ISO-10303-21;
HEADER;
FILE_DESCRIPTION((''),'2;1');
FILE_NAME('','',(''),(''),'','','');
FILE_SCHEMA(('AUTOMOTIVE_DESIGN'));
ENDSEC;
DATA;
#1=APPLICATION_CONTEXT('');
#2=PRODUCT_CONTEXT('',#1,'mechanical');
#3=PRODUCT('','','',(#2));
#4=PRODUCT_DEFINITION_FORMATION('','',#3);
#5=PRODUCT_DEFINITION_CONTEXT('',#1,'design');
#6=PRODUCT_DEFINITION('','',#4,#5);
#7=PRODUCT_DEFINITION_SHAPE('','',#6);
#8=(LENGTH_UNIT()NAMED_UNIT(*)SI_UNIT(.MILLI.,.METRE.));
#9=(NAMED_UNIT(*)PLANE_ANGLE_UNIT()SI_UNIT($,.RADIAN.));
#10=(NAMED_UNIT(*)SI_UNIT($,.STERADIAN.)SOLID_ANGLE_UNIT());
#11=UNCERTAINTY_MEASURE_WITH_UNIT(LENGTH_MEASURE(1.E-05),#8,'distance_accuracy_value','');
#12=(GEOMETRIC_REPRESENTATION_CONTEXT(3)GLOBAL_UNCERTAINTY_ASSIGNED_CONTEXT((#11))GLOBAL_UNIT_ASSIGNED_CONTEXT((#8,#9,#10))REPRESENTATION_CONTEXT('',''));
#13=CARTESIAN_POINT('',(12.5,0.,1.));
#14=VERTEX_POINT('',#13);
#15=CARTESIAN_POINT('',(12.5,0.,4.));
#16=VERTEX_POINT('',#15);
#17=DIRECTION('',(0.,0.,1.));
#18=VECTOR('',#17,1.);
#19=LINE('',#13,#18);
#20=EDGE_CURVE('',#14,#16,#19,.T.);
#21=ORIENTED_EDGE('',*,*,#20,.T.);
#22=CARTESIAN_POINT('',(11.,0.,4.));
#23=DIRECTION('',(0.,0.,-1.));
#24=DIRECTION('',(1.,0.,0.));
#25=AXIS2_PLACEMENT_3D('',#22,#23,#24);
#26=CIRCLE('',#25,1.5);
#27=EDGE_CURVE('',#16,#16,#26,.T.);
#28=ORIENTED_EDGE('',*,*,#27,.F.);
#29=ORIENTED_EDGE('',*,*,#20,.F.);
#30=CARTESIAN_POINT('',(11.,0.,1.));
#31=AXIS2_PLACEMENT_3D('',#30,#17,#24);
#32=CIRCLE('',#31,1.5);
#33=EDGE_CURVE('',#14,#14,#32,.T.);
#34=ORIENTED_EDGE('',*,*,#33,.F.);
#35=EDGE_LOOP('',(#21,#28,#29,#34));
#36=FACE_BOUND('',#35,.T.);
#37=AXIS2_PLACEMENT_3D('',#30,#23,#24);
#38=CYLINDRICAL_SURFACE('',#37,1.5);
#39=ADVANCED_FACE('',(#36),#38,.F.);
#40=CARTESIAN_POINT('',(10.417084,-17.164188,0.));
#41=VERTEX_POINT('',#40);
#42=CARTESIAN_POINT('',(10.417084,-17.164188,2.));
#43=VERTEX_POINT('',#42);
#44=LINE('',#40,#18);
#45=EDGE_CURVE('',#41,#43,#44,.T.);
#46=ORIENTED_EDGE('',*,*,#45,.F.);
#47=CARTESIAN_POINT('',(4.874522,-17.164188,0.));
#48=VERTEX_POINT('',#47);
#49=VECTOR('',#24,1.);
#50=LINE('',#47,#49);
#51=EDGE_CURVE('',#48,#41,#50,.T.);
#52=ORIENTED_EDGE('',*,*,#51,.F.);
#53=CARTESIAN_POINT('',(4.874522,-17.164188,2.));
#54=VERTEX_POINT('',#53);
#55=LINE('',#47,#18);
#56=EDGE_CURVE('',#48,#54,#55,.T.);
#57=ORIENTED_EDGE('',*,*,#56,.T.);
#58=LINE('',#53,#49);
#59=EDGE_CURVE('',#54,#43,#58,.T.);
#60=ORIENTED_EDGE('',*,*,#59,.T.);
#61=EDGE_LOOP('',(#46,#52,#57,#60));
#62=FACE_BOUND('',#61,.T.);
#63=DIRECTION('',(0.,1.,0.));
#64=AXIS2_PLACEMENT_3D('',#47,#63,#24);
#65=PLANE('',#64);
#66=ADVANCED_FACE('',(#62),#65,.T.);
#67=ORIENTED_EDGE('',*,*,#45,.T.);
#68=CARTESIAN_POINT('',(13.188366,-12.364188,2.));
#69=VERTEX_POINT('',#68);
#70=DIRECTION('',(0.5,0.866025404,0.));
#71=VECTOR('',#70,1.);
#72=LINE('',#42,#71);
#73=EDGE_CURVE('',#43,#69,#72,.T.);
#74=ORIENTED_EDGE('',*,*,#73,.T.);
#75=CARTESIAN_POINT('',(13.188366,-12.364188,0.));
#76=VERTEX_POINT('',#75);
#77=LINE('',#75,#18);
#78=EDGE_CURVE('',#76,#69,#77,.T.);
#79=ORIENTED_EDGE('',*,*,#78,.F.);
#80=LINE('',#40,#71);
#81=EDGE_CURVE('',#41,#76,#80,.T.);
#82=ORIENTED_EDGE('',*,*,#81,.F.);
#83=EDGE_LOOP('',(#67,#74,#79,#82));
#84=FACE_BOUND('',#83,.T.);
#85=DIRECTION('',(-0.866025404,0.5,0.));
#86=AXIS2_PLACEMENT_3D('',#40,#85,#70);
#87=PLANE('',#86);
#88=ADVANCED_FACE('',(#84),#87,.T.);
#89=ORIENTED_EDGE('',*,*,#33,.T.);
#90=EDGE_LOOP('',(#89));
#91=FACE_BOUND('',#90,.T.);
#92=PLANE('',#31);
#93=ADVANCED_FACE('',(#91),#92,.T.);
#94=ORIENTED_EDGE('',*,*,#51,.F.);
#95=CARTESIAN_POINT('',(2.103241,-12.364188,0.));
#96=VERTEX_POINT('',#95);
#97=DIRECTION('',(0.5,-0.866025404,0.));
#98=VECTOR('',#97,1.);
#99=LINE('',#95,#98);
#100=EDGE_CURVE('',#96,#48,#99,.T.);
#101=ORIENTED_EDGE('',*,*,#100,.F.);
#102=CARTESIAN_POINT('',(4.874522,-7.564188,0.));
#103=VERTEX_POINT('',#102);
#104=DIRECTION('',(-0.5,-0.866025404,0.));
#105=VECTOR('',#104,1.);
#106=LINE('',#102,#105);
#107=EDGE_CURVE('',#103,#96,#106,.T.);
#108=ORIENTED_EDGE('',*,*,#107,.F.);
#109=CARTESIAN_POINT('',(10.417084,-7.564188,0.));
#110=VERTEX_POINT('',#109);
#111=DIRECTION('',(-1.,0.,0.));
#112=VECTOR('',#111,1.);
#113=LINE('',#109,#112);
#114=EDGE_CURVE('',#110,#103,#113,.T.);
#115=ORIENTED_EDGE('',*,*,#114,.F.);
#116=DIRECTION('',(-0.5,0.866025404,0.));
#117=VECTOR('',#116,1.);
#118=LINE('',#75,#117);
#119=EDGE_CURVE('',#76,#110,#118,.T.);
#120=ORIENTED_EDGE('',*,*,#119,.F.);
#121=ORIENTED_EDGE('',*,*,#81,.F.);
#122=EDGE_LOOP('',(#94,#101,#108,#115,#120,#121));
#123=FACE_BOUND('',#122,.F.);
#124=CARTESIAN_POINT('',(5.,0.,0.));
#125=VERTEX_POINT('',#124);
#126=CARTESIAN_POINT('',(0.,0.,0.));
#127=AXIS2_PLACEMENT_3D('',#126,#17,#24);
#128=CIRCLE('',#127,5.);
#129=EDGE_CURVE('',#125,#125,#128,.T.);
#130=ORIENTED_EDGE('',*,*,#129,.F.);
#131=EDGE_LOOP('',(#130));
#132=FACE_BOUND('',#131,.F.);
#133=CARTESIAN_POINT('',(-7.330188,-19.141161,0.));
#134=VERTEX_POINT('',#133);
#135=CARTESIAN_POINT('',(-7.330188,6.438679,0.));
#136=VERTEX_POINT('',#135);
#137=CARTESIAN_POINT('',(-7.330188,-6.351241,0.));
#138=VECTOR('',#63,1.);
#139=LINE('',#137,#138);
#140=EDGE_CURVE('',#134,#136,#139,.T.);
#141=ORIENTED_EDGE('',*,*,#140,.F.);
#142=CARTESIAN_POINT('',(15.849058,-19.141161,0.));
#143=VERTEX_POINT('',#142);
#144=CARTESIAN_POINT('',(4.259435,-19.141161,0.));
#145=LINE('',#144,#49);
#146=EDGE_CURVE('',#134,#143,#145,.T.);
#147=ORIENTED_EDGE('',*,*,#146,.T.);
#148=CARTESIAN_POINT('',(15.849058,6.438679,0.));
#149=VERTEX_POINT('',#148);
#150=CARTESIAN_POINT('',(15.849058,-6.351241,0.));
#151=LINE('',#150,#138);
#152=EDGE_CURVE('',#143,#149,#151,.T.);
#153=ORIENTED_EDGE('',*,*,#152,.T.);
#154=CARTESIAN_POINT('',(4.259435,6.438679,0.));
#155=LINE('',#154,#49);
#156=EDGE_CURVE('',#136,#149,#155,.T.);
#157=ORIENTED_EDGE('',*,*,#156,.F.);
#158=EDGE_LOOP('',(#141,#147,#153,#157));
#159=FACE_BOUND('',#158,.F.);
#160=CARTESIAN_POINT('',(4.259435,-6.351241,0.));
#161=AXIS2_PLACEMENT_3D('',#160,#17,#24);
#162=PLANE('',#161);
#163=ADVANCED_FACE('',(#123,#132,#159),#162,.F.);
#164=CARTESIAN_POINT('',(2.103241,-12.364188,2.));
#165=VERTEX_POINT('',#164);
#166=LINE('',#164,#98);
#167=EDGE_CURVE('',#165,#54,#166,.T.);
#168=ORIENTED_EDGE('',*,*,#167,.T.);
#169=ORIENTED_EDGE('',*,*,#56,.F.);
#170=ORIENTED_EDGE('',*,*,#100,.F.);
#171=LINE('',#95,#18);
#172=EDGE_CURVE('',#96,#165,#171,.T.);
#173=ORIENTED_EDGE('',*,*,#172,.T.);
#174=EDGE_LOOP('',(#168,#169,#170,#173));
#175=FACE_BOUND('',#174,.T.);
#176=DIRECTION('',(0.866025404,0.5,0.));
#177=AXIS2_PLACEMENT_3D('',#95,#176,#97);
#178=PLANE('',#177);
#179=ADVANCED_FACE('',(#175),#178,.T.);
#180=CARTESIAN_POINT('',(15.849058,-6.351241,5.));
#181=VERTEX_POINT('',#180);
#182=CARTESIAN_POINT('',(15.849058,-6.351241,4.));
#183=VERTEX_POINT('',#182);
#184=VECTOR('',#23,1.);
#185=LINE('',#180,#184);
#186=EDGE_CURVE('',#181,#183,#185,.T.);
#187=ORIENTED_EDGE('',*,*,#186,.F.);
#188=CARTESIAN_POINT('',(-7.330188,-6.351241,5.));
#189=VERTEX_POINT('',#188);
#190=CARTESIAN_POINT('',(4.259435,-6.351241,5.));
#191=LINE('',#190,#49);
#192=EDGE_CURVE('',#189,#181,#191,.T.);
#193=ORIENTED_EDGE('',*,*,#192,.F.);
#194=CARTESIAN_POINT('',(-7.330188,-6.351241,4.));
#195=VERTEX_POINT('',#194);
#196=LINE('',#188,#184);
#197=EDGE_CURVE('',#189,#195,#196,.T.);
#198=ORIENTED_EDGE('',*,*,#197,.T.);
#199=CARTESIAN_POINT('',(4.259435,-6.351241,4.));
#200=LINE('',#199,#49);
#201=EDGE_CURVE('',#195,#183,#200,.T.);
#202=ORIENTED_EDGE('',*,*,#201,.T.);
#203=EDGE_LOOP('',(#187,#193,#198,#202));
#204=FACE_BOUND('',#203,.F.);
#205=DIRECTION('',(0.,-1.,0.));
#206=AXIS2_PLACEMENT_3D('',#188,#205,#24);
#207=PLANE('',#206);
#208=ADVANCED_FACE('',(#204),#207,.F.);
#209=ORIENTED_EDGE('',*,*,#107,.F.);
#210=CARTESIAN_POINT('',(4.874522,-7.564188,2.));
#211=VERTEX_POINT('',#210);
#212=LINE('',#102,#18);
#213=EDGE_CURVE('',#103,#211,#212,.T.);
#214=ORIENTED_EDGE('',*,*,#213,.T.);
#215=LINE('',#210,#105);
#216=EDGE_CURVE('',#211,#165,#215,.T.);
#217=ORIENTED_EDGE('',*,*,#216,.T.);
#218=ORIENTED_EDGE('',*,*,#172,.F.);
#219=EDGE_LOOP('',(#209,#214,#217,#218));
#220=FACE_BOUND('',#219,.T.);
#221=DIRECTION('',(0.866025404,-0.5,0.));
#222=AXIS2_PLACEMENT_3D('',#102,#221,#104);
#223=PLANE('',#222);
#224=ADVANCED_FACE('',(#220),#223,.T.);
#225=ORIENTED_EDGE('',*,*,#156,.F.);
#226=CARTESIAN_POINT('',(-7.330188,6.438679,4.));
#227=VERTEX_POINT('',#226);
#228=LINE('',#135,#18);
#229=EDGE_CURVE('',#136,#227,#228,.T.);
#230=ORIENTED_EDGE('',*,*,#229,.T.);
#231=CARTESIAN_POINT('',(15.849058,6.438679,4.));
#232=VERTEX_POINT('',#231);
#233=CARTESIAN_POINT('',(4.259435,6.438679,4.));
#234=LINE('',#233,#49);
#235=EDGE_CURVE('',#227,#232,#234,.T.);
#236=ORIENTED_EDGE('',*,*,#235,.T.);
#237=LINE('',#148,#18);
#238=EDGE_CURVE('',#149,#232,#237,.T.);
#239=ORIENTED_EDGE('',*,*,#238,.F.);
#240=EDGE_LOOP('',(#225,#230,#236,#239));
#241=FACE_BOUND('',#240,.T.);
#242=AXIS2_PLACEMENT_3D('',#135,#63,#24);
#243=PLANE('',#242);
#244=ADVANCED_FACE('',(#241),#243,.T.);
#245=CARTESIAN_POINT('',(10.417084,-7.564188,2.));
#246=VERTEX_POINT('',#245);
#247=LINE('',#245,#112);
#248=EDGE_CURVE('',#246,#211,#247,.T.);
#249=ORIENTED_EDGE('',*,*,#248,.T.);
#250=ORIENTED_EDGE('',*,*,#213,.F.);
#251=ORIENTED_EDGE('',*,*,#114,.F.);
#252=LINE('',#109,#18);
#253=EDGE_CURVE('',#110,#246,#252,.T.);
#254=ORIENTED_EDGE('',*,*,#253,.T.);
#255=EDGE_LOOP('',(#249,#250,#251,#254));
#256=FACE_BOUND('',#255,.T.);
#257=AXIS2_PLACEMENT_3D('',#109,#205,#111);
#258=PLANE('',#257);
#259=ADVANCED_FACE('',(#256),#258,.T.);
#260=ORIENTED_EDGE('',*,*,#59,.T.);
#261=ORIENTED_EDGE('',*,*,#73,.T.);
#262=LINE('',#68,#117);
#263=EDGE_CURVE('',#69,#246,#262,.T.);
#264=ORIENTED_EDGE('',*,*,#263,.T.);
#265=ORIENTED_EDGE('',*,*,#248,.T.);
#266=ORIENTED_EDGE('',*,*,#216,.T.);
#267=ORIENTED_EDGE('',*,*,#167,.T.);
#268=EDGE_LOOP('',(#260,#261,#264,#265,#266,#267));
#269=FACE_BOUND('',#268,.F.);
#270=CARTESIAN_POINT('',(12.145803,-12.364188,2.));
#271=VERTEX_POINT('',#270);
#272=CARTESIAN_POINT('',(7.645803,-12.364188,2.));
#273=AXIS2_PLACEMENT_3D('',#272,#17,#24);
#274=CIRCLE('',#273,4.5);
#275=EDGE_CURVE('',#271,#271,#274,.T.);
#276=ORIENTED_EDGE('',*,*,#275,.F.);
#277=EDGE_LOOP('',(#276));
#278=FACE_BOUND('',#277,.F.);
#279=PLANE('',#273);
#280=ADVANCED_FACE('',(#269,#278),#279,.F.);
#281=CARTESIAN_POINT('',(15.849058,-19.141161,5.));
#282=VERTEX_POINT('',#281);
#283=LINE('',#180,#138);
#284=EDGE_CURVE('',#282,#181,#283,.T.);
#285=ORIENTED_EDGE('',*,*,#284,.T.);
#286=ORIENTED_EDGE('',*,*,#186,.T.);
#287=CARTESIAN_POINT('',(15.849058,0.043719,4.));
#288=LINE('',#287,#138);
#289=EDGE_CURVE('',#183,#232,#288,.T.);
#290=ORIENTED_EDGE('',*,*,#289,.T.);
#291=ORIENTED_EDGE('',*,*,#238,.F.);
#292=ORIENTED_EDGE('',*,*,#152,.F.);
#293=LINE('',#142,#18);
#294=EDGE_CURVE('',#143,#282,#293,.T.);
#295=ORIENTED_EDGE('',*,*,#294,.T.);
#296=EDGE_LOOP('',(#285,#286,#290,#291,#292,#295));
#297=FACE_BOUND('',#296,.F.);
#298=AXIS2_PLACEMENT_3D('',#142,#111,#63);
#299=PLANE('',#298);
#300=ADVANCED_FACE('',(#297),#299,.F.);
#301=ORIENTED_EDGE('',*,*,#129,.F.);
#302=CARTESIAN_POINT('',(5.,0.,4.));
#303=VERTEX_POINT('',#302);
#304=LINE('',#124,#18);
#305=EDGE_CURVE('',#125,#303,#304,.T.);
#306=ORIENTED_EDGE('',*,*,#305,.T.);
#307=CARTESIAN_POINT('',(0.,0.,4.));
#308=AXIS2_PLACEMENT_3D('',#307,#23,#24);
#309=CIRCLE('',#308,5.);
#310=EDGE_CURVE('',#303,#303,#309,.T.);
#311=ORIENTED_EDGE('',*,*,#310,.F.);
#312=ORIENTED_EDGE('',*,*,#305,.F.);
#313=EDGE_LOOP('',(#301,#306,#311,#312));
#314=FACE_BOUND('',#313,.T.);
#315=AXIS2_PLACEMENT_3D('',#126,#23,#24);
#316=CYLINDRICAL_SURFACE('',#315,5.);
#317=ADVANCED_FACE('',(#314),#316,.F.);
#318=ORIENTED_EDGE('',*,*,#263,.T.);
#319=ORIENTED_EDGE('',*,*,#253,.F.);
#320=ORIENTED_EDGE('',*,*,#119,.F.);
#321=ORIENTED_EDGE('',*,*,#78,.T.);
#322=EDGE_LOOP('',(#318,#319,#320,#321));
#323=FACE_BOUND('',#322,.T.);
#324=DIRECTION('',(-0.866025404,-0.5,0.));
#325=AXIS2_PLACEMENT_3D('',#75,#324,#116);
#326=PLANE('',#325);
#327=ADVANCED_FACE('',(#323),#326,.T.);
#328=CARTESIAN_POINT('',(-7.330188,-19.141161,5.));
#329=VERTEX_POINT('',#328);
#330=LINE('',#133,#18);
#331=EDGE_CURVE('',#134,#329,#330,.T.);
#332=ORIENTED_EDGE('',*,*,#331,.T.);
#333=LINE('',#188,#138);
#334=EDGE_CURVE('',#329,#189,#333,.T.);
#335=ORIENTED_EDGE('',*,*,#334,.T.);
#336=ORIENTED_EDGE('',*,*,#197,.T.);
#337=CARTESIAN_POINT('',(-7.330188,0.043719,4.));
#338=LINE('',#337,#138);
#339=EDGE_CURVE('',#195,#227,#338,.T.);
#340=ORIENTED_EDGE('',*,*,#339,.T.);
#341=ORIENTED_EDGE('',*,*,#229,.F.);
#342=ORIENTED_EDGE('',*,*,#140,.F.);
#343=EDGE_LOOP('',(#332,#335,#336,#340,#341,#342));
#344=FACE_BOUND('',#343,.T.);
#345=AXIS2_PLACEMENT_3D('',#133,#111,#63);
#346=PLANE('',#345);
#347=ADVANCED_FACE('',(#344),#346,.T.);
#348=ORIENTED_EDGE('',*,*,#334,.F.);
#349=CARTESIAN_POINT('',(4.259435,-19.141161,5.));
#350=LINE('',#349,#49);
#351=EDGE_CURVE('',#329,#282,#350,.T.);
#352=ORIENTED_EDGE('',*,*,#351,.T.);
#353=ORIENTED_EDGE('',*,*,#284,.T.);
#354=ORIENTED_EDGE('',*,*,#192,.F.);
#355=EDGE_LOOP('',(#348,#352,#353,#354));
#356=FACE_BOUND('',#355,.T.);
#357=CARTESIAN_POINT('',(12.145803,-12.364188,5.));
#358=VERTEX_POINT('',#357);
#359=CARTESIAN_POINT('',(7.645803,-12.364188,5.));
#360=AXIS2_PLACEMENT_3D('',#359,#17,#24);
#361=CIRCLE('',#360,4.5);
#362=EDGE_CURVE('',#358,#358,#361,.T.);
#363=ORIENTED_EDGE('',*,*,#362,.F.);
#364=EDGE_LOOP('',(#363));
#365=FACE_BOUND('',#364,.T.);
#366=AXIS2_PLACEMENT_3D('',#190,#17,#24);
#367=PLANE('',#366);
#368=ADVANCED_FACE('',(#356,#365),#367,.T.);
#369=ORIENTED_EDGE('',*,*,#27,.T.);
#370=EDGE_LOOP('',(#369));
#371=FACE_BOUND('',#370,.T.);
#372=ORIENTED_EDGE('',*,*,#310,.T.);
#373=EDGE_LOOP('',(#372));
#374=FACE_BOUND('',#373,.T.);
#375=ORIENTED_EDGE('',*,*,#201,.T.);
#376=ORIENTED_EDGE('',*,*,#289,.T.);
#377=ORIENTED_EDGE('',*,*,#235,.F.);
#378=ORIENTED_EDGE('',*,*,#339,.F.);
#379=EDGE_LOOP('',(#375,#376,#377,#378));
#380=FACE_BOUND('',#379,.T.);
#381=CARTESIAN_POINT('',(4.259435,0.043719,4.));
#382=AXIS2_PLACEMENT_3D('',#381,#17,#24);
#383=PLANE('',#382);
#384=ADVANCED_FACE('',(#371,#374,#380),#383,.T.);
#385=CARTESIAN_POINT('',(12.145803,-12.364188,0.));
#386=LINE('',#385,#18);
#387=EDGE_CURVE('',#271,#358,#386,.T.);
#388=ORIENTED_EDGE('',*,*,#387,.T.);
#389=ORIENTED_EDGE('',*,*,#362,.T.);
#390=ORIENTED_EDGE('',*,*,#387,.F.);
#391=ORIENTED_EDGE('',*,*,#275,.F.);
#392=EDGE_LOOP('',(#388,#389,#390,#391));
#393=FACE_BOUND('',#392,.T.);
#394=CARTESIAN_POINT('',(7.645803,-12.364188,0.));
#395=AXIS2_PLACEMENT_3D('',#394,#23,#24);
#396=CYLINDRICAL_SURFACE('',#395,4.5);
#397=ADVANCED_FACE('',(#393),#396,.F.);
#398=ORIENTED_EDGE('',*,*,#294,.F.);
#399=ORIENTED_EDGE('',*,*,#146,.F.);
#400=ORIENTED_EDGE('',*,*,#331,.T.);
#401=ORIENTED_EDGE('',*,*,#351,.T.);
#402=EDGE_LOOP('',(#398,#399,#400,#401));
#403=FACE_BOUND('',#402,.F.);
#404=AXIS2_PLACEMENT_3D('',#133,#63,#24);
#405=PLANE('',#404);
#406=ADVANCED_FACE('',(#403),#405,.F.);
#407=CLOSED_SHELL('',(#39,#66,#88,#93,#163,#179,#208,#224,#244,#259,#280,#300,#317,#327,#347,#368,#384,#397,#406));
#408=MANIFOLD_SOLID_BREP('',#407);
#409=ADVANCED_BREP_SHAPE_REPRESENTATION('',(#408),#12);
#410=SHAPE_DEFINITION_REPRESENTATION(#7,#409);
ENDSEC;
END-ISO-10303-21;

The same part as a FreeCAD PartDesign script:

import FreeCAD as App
import Part
import Sketcher

V = App.Vector
Q = App.Units.Quantity

doc = App.newDocument("Part")
body = doc.addObject("PartDesign::Body", "Body")

sketch1 = body.newObject("Sketcher::SketchObject", "Sketch")
sketch1.AttachmentSupport = (doc.getObject("XY_Plane"), [""])
sketch1.MapMode = "FlatFace"
sketch1.addGeometry([
    Part.LineSegment(V(-7.330188, 6.438679, 0), V(-7.330188, -19.141161, 0)),
    Part.LineSegment(V(-7.330188, -19.141161, 0), V(15.849058, -19.141161, 0)),
    Part.LineSegment(V(15.849058, -19.141161, 0), V(15.849058, 6.438679, 0)),
    Part.LineSegment(V(15.849058, 6.438679, 0), V(-7.330188, 6.438679, 0)),
    Part.Circle(V(7.645803, -12.364188, 0), V(0, 0, 1), 4.5),
    Part.Circle(V(0, 0, 0), V(0, 0, 1), 5),
], False)
sketch1.addConstraint([
    Sketcher.Constraint("Coincident", 0, 2, 1, 1),
    Sketcher.Constraint("Coincident", 1, 2, 2, 1),
    Sketcher.Constraint("Coincident", 2, 2, 3, 1),
    Sketcher.Constraint("Coincident", 3, 2, 0, 1),
    Sketcher.Constraint("Vertical", 0),
    Sketcher.Constraint("Horizontal", 1),
    Sketcher.Constraint("Vertical", 2),
    Sketcher.Constraint("Horizontal", 3),
    Sketcher.Constraint("Coincident", 5, 3, -1, 1),
    Sketcher.Constraint("Diameter", 4, Q("9 mm")),
    Sketcher.Constraint("Diameter", 5, Q("10 mm")),
    Sketcher.Constraint("DistanceY", 0, 2, 0, 1, Q("25.579839 mm")),
    Sketcher.Constraint("DistanceX", 1, 1, 1, 2, Q("23.179246 mm")),
    Sketcher.Constraint("DistanceX", 0, 2, -1, 1, Q("7.330188 mm")),
    Sketcher.Constraint("DistanceY", 0, 2, -1, 1, Q("19.141161 mm")),
    Sketcher.Constraint("DistanceX", 0, 2, 4, 3, Q("14.975991 mm")),
    Sketcher.Constraint("DistanceY", 4, 3, -1, 1, Q("12.364188 mm")),
])
pad1 = body.newObject("PartDesign::Pad", "Pad")
pad1.Profile = sketch1
pad1.Length = 5

sketch2 = body.newObject("Sketcher::SketchObject", "Sketch001")
sketch2.AttachmentSupport = (doc.getObject("XY_Plane"), [""])
sketch2.MapMode = "FlatFace"
sketch2.addGeometry([
    Part.LineSegment(V(10.417084, -7.564188, 0), V(4.874522, -7.564188, 0)),
    Part.LineSegment(V(4.874522, -7.564188, 0), V(2.103241, -12.364188, 0)),
    Part.LineSegment(V(2.103241, -12.364188, 0), V(4.874522, -17.164188, 0)),
    Part.LineSegment(V(4.874522, -17.164188, 0), V(10.417084, -17.164188, 0)),
    Part.LineSegment(V(10.417084, -17.164188, 0), V(13.188366, -12.364188, 0)),
    Part.LineSegment(V(13.188366, -12.364188, 0), V(10.417084, -7.564188, 0)),
    Part.Circle(V(7.645803, -12.364188, 0), V(0, 0, 1), 4.5),
], False)
sketch2.addConstraint([
    Sketcher.Constraint("Coincident", 0, 2, 1, 1),
    Sketcher.Constraint("Coincident", 1, 2, 2, 1),
    Sketcher.Constraint("Coincident", 2, 2, 3, 1),
    Sketcher.Constraint("Coincident", 3, 2, 4, 1),
    Sketcher.Constraint("Coincident", 4, 2, 5, 1),
    Sketcher.Constraint("Coincident", 5, 2, 0, 1),
    Sketcher.Constraint("Horizontal", 0),
    Sketcher.Constraint("Horizontal", 3),
    Sketcher.Constraint("Parallel", 1, 4),
    Sketcher.Constraint("Parallel", 2, 5),
    Sketcher.Constraint("Horizontal", 6, 3, 1, 2),
    Sketcher.Constraint("Horizontal", 1, 2, 4, 2),
    Sketcher.Constraint("Vertical", 0, 2, 2, 2),
    Sketcher.Constraint("Vertical", 3, 2, 5, 2),
    Sketcher.Constraint("Diameter", 6, Q("9 mm")),
    Sketcher.Constraint("Angle", 1, Q("-120 deg")),
    Sketcher.Constraint("DistanceY", 6, 3, 0, 2, Q("4.8 mm")),
    Sketcher.Constraint("DistanceX", 0, 2, 0, 1, Q("5.542563 mm")),
    Sketcher.Constraint("DistanceX", -1, 1, 0, 2, Q("4.874522 mm")),
    Sketcher.Constraint("DistanceX", 0, 2, 6, 3, Q("2.771281 mm")),
    Sketcher.Constraint("DistanceY", 6, 3, -1, 1, Q("12.364188 mm")),
])
pocket1 = body.newObject("PartDesign::Pocket", "Pocket")
pocket1.Profile = sketch2
pocket1.Length = 2
pocket1.Reversed = True

sketch3 = body.newObject("Sketcher::SketchObject", "Sketch002")
sketch3.AttachmentSupport = (doc.getObject("XY_Plane"), [""])
sketch3.MapMode = "FlatFace"
sketch3.AttachmentOffset = App.Placement(V(0, 0, 1), App.Rotation())
sketch3.addGeometry(Part.Circle(V(11, 0, 0), V(0, 0, 1), 1.5), False)
sketch3.addConstraint([
    Sketcher.Constraint("PointOnObject", 0, 3, -1),
    Sketcher.Constraint("Diameter", 0, Q("3 mm")),
    Sketcher.Constraint("DistanceX", -1, 1, 0, 3, Q("11 mm")),
])
pocket2 = body.newObject("PartDesign::Pocket", "Pocket001")
pocket2.Profile = sketch3
pocket2.Length = 4
pocket2.Reversed = True

sketch4 = body.newObject("Sketcher::SketchObject", "Sketch003")
sketch4.AttachmentSupport = (doc.getObject("XY_Plane"), [""])
sketch4.MapMode = "FlatFace"
sketch4.AttachmentOffset = App.Placement(V(0, 0, 5), App.Rotation())
sketch4.addGeometry([
    Part.LineSegment(V(-7.330188, 6.438679, 0), V(-7.330188, -6.351241, 0)),
    Part.LineSegment(V(-7.330188, -6.351241, 0), V(15.849058, -6.351241, 0)),
    Part.LineSegment(V(15.849058, -6.351241, 0), V(15.849058, 6.438679, 0)),
    Part.LineSegment(V(15.849058, 6.438679, 0), V(-7.330188, 6.438679, 0)),
], False)
sketch4.addConstraint([
    Sketcher.Constraint("Coincident", 0, 2, 1, 1),
    Sketcher.Constraint("Coincident", 1, 2, 2, 1),
    Sketcher.Constraint("Coincident", 2, 2, 3, 1),
    Sketcher.Constraint("Coincident", 3, 2, 0, 1),
    Sketcher.Constraint("Vertical", 0),
    Sketcher.Constraint("Horizontal", 1),
    Sketcher.Constraint("Vertical", 2),
    Sketcher.Constraint("Horizontal", 3),
    Sketcher.Constraint("DistanceY", 0, 2, 0, 1, Q("12.78992 mm")),
    Sketcher.Constraint("DistanceX", 1, 1, 1, 2, Q("23.179246 mm")),
    Sketcher.Constraint("DistanceX", 0, 2, -1, 1, Q("7.330188 mm")),
    Sketcher.Constraint("DistanceY", 0, 2, -1, 1, Q("6.351241 mm")),
])
pocket3 = body.newObject("PartDesign::Pocket", "Pocket002")
pocket3.Profile = sketch4
pocket3.Length = 1

doc.recompute()
